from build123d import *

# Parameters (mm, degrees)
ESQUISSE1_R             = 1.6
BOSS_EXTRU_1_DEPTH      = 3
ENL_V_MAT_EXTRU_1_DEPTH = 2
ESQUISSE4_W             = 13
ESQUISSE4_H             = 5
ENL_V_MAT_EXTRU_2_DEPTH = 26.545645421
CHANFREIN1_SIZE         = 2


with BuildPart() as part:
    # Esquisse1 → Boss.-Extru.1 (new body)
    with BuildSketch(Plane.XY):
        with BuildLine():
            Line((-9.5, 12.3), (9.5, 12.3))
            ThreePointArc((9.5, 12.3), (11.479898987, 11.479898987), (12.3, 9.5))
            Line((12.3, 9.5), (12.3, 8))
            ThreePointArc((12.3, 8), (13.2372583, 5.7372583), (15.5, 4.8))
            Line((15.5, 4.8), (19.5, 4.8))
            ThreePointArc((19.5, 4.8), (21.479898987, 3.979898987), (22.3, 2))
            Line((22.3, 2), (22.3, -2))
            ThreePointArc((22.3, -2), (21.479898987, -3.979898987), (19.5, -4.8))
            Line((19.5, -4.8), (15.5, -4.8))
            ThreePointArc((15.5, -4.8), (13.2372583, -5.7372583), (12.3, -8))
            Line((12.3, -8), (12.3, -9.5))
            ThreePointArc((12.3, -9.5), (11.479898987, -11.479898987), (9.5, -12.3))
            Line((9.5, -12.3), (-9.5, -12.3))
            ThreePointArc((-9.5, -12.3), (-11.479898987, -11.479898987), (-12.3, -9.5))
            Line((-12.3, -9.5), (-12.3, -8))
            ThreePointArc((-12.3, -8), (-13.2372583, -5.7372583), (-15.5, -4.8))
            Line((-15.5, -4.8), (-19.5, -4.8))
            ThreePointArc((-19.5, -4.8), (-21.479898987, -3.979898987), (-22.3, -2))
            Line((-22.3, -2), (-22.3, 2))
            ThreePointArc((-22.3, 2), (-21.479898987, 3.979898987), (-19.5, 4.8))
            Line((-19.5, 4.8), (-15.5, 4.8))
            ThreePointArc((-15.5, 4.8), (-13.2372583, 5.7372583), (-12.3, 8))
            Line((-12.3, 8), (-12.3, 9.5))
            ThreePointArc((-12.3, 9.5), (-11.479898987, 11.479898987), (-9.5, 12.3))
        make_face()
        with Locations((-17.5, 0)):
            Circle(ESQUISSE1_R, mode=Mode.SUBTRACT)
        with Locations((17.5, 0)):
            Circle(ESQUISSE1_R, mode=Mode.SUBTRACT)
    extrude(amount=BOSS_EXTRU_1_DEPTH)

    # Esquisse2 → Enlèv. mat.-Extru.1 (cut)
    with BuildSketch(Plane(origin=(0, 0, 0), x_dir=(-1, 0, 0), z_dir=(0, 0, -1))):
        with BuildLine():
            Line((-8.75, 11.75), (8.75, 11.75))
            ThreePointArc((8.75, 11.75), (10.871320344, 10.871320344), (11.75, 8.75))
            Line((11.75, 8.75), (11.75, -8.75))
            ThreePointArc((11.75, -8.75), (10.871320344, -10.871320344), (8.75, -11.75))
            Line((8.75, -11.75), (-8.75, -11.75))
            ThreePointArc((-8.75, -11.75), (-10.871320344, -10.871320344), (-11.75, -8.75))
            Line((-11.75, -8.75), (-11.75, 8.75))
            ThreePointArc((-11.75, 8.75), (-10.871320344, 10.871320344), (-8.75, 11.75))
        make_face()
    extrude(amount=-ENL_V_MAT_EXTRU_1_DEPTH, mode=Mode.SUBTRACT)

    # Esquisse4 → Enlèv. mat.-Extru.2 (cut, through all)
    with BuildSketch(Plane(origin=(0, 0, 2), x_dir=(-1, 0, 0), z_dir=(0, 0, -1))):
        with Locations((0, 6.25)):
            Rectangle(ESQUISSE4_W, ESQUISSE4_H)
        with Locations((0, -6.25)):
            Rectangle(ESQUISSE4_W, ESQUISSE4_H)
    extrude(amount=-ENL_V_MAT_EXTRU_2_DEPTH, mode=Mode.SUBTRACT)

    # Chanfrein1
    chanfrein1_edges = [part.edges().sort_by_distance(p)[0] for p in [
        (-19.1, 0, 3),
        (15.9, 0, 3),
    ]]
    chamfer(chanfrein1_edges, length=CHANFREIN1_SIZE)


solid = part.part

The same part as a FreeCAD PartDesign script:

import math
import FreeCAD as App
import Part
import Sketcher
Q = App.Units.Quantity


def edges_at(feature, points):
    """Names of the edges that pass closest to the given points."""
    edges = feature.Shape.Edges
    near = lambda p: min(range(len(edges)), key=lambda i: edges[i].distToShape(Part.Vertex(*p))[0])
    return sorted({f"Edge{near(p) + 1}" for p in points})

doc = App.newDocument("Part")
body = doc.addObject("PartDesign::Body", "Body")

sketch1 = body.newObject("Sketcher::SketchObject", "Sketch")
sketch1.AttachmentSupport = (doc.getObject("XY_Plane"), [""])
sketch1.MapMode = "FlatFace"
sketch1.addGeometry([
    Part.LineSegment(App.Vector(9.5, 12.3, 0), App.Vector(-9.5, 12.3, 0)),
    Part.ArcOfCircle(Part.Circle(App.Vector(-9.5, 9.5, 0), App.Vector(0, 0, 1), 2.8), math.radians(90), math.radians(180)),
    Part.LineSegment(App.Vector(-12.3, 9.5, 0), App.Vector(-12.3, 8, 0)),
    Part.ArcOfCircle(Part.Circle(App.Vector(-15.5, 8, 0), App.Vector(0, 0, 1), 3.2), math.radians(-90), math.radians(0)),
    Part.LineSegment(App.Vector(-15.5, 4.8, 0), App.Vector(-19.5, 4.8, 0)),
    Part.ArcOfCircle(Part.Circle(App.Vector(-19.5, 2, 0), App.Vector(0, 0, 1), 2.8), math.radians(90), math.radians(180)),
    Part.LineSegment(App.Vector(-22.3, 2, 0), App.Vector(-22.3, -2, 0)),
    Part.ArcOfCircle(Part.Circle(App.Vector(-19.5, -2, 0), App.Vector(0, 0, 1), 2.8), math.radians(-180), math.radians(-90)),
    Part.LineSegment(App.Vector(-19.5, -4.8, 0), App.Vector(-15.5, -4.8, 0)),
    Part.ArcOfCircle(Part.Circle(App.Vector(-15.5, -8, 0), App.Vector(0, 0, 1), 3.2), math.radians(0), math.radians(90)),
    Part.LineSegment(App.Vector(-12.3, -8, 0), App.Vector(-12.3, -9.5, 0)),
    Part.ArcOfCircle(Part.Circle(App.Vector(-9.5, -9.5, 0), App.Vector(0, 0, 1), 2.8), math.radians(-180), math.radians(-90)),
    Part.LineSegment(App.Vector(-9.5, -12.3, 0), App.Vector(9.5, -12.3, 0)),
    Part.ArcOfCircle(Part.Circle(App.Vector(9.5, -9.5, 0), App.Vector(0, 0, 1), 2.8), math.radians(-90), math.radians(0)),
    Part.LineSegment(App.Vector(12.3, -9.5, 0), App.Vector(12.3, -8, 0)),
    Part.ArcOfCircle(Part.Circle(App.Vector(15.5, -8, 0), App.Vector(0, 0, 1), 3.2), math.radians(90), math.radians(180)),
    Part.LineSegment(App.Vector(15.5, -4.8, 0), App.Vector(19.5, -4.8, 0)),
    Part.ArcOfCircle(Part.Circle(App.Vector(19.5, -2, 0), App.Vector(0, 0, 1), 2.8), math.radians(-90), math.radians(0)),
    Part.LineSegment(App.Vector(22.3, -2, 0), App.Vector(22.3, 2, 0)),
    Part.ArcOfCircle(Part.Circle(App.Vector(19.5, 2, 0), App.Vector(0, 0, 1), 2.8), math.radians(0), math.radians(90)),
    Part.LineSegment(App.Vector(19.5, 4.8, 0), App.Vector(15.5, 4.8, 0)),
    Part.ArcOfCircle(Part.Circle(App.Vector(15.5, 8, 0), App.Vector(0, 0, 1), 3.2), math.radians(180), math.radians(270)),
    Part.LineSegment(App.Vector(12.3, 8, 0), App.Vector(12.3, 9.5, 0)),
    Part.ArcOfCircle(Part.Circle(App.Vector(9.5, 9.5, 0), App.Vector(0, 0, 1), 2.8), math.radians(0), math.radians(90)),
    Part.Circle(App.Vector(17.5, 0, 0), App.Vector(0, 0, 1), 1.6),
    Part.Circle(App.Vector(-17.5, 0, 0), App.Vector(0, 0, 1), 1.6),
], False)
sketch1.addConstraint([
    Sketcher.Constraint("Tangent", 0, 2, 1, 1),
    Sketcher.Constraint("Tangent", 1, 2, 2, 1),
    Sketcher.Constraint("Tangent", 2, 2, 3, 2),
    Sketcher.Constraint("Tangent", 3, 1, 4, 1),
    Sketcher.Constraint("Tangent", 4, 2, 5, 1),
    Sketcher.Constraint("Tangent", 5, 2, 6, 1),
    Sketcher.Constraint("Tangent", 6, 2, 7, 1),
    Sketcher.Constraint("Tangent", 7, 2, 8, 1),
    Sketcher.Constraint("Tangent", 8, 2, 9, 2),
    Sketcher.Constraint("Tangent", 9, 1, 10, 1),
    Sketcher.Constraint("Tangent", 10, 2, 11, 1),
    Sketcher.Constraint("Tangent", 11, 2, 12, 1),
    Sketcher.Constraint("Tangent", 12, 2, 13, 1),
    Sketcher.Constraint("Tangent", 13, 2, 14, 1),
    Sketcher.Constraint("Tangent", 14, 2, 15, 2),
    Sketcher.Constraint("Tangent", 15, 1, 16, 1),
    Sketcher.Constraint("Tangent", 16, 2, 17, 1),
    Sketcher.Constraint("Tangent", 17, 2, 18, 1),
    Sketcher.Constraint("Tangent", 18, 2, 19, 1),
    Sketcher.Constraint("Tangent", 19, 2, 20, 1),
    Sketcher.Constraint("Tangent", 20, 2, 21, 2),
    Sketcher.Constraint("Tangent", 21, 1, 22, 1),
    Sketcher.Constraint("Tangent", 22, 2, 23, 1),
    Sketcher.Constraint("Tangent", 23, 2, 0, 1),
    Sketcher.Constraint("Horizontal", 0),
    Sketcher.Constraint("Vertical", 2),
    Sketcher.Constraint("Horizontal", 4),
    Sketcher.Constraint("Vertical", 6),
    Sketcher.Constraint("Horizontal", 8),
    Sketcher.Constraint("Vertical", 10),
    Sketcher.Constraint("Horizontal", 12),
    Sketcher.Constraint("Vertical", 14),
    Sketcher.Constraint("Horizontal", 16),
    Sketcher.Constraint("Vertical", 18),
    Sketcher.Constraint("Horizontal", 20),
    Sketcher.Constraint("Vertical", 22),
    Sketcher.Constraint("Equal", 1, 5),
    Sketcher.Constraint("Equal", 5, 7),
    Sketcher.Constraint("Equal", 3, 9),
    Sketcher.Constraint("Equal", 7, 11),
    Sketcher.Constraint("Equal", 11, 13),
    Sketcher.Constraint("Equal", 9, 15),
    Sketcher.Constraint("Equal", 13, 17),
    Sketcher.Constraint("Equal", 17, 19),
    Sketcher.Constraint("Equal", 15, 21),
    Sketcher.Constraint("Equal", 19, 23),
    Sketcher.Constraint("Equal", 24, 25),
    Sketcher.Constraint("Symmetric", 1, 3, 13, 3, -1, 1),
    Sketcher.Constraint("Symmetric", 5, 3, 17, 3, -1, 1),
    Sketcher.Constraint("Symmetric", 9, 3, 21, 3, -1, 1),
    Sketcher.Constraint("Symmetric", 24, 3, 25, 3, -1, 1),
    Sketcher.Constraint("Symmetric", 9, 3, 15, 3, -2),
    Sketcher.Constraint("PointOnObject", 24, 3, -1),
    Sketcher.Constraint("Equal", 20, 6),
    Sketcher.Constraint("Diameter", 24, Q("3.2 mm")),
    Sketcher.Constraint("Radius", 1, Q("2.8 mm")),
    Sketcher.Constraint("Radius", 3, Q("3.2 mm")),
    Sketcher.Constraint("DistanceX", 0, 2, 0, 1, Q("19 mm")),
    Sketcher.Constraint("DistanceX", 4, 2, 4, 1, Q("4 mm")),
    Sketcher.Constraint("DistanceY", 2, 2, 2, 1, Q("1.5 mm")),
    Sketcher.Constraint("DistanceX", 24, 3, 17, 3, Q("2 mm")),
])
pad1 = body.newObject("PartDesign::Pad", "Pad")
pad1.Profile = sketch1
pad1.Length = 3

sketch2 = body.newObject("Sketcher::SketchObject", "Sketch001")
sketch2.AttachmentSupport = (doc.getObject("XY_Plane"), [""])
sketch2.MapMode = "FlatFace"
sketch2.addGeometry([
    Part.LineSegment(App.Vector(-8.8, 11.8, 0), App.Vector(8.8, 11.8, 0)),
    Part.ArcOfCircle(Part.Circle(App.Vector(8.8, 8.8, 0), App.Vector(0, 0, 1), 3), math.radians(0), math.radians(90)),
    Part.LineSegment(App.Vector(11.8, 8.8, 0), App.Vector(11.8, -8.8, 0)),
    Part.ArcOfCircle(Part.Circle(App.Vector(8.8, -8.8, 0), App.Vector(0, 0, 1), 3), math.radians(-90), math.radians(0)),
    Part.LineSegment(App.Vector(8.8, -11.8, 0), App.Vector(-8.8, -11.8, 0)),
    Part.ArcOfCircle(Part.Circle(App.Vector(-8.8, -8.8, 0), App.Vector(0, 0, 1), 3), math.radians(180), math.radians(270)),
    Part.LineSegment(App.Vector(-11.8, -8.8, 0), App.Vector(-11.8, 8.8, 0)),
    Part.ArcOfCircle(Part.Circle(App.Vector(-8.8, 8.8, 0), App.Vector(0, 0, 1), 3), math.radians(90), math.radians(180)),
], False)
sketch2.addConstraint([
    Sketcher.Constraint("Tangent", 0, 2, 1, 2),
    Sketcher.Constraint("Tangent", 1, 1, 2, 1),
    Sketcher.Constraint("Tangent", 2, 2, 3, 2),
    Sketcher.Constraint("Tangent", 3, 1, 4, 1),
    Sketcher.Constraint("Tangent", 4, 2, 5, 2),
    Sketcher.Constraint("Tangent", 5, 1, 6, 1),
    Sketcher.Constraint("Tangent", 6, 2, 7, 2),
    Sketcher.Constraint("Tangent", 7, 1, 0, 1),
    Sketcher.Constraint("Horizontal", 0),
    Sketcher.Constraint("Vertical", 2),
    Sketcher.Constraint("Horizontal", 4),
    Sketcher.Constraint("Vertical", 6),
    Sketcher.Constraint("Equal", 1, 3),
    Sketcher.Constraint("Equal", 3, 5),
    Sketcher.Constraint("Equal", 5, 7),
    Sketcher.Constraint("Symmetric", 1, 3, 5, 3, -1, 1),
    Sketcher.Constraint("Equal", 4, 2),
    Sketcher.Constraint("Radius", 1, Q("3 mm")),
    Sketcher.Constraint("DistanceX", 0, 1, 0, 2, Q("17.5 mm")),
])
pocket1 = body.newObject("PartDesign::Pocket", "Pocket")
pocket1.Profile = sketch2
pocket1.Length = 2
pocket1.Reversed = True

sketch3 = body.newObject("Sketcher::SketchObject", "Sketch002")
sketch3.AttachmentSupport = (doc.getObject("XY_Plane"), [""])
sketch3.MapMode = "FlatFace"
sketch3.AttachmentOffset = App.Placement(App.Vector(0, 0, 2), App.Rotation())
sketch3.addGeometry([
    Part.LineSegment(App.Vector(6, 9, 0), App.Vector(6, 4, 0)),
    Part.LineSegment(App.Vector(6, 4, 0), App.Vector(-6, 4, 0)),
    Part.LineSegment(App.Vector(-6, 4, 0), App.Vector(-6, 9, 0)),
    Part.LineSegment(App.Vector(-6, 9, 0), App.Vector(6, 9, 0)),
    Part.LineSegment(App.Vector(6, -4, 0), App.Vector(6, -9, 0)),
    Part.LineSegment(App.Vector(6, -9, 0), App.Vector(-6, -9, 0)),
    Part.LineSegment(App.Vector(-6, -9, 0), App.Vector(-6, -4, 0)),
    Part.LineSegment(App.Vector(-6, -4, 0), App.Vector(6, -4, 0)),
], False)
sketch3.addConstraint([
    Sketcher.Constraint("Coincident", 0, 2, 1, 1),
    Sketcher.Constraint("Coincident", 1, 2, 2, 1),
    Sketcher.Constraint("Coincident", 2, 2, 3, 1),
    Sketcher.Constraint("Coincident", 3, 2, 0, 1),
    Sketcher.Constraint("Coincident", 4, 2, 5, 1),
    Sketcher.Constraint("Coincident", 5, 2, 6, 1),
    Sketcher.Constraint("Coincident", 6, 2, 7, 1),
    Sketcher.Constraint("Coincident", 7, 2, 4, 1),
    Sketcher.Constraint("Vertical", 0),
    Sketcher.Constraint("Horizontal", 1),
    Sketcher.Constraint("Vertical", 2),
    Sketcher.Constraint("Horizontal", 3),
    Sketcher.Constraint("Vertical", 4),
    Sketcher.Constraint("Horizontal", 5),
    Sketcher.Constraint("Vertical", 6),
    Sketcher.Constraint("Horizontal", 7),
    Sketcher.Constraint("Symmetric", 2, 2, 4, 2, -1, 1),
    Sketcher.Constraint("Symmetric", 0, 2, 6, 2, -1, 1),
    Sketcher.Constraint("Vertical", 3, 2, 4, 2),
    Sketcher.Constraint("DistanceX", 1, 2, 1, 1, Q("13 mm")),
    Sketcher.Constraint("DistanceY", 0, 2, 0, 1, Q("5 mm")),
    Sketcher.Constraint("DistanceY", 4, 2, 0, 2, Q("12.5 mm")),
])
pocket2 = body.newObject("PartDesign::Pocket", "Pocket001")
pocket2.Profile = sketch3
pocket2.Type = "ThroughAll"
pocket2.Reversed = True
doc.recompute()

chamfer = body.newObject("PartDesign::Chamfer", "Chamfer")
chamfer.Base = (pocket2, edges_at(pocket2, [(-19.1, 0, 3), (15.9, 0, 3)]))
chamfer.Size = 2

doc.recompute()
